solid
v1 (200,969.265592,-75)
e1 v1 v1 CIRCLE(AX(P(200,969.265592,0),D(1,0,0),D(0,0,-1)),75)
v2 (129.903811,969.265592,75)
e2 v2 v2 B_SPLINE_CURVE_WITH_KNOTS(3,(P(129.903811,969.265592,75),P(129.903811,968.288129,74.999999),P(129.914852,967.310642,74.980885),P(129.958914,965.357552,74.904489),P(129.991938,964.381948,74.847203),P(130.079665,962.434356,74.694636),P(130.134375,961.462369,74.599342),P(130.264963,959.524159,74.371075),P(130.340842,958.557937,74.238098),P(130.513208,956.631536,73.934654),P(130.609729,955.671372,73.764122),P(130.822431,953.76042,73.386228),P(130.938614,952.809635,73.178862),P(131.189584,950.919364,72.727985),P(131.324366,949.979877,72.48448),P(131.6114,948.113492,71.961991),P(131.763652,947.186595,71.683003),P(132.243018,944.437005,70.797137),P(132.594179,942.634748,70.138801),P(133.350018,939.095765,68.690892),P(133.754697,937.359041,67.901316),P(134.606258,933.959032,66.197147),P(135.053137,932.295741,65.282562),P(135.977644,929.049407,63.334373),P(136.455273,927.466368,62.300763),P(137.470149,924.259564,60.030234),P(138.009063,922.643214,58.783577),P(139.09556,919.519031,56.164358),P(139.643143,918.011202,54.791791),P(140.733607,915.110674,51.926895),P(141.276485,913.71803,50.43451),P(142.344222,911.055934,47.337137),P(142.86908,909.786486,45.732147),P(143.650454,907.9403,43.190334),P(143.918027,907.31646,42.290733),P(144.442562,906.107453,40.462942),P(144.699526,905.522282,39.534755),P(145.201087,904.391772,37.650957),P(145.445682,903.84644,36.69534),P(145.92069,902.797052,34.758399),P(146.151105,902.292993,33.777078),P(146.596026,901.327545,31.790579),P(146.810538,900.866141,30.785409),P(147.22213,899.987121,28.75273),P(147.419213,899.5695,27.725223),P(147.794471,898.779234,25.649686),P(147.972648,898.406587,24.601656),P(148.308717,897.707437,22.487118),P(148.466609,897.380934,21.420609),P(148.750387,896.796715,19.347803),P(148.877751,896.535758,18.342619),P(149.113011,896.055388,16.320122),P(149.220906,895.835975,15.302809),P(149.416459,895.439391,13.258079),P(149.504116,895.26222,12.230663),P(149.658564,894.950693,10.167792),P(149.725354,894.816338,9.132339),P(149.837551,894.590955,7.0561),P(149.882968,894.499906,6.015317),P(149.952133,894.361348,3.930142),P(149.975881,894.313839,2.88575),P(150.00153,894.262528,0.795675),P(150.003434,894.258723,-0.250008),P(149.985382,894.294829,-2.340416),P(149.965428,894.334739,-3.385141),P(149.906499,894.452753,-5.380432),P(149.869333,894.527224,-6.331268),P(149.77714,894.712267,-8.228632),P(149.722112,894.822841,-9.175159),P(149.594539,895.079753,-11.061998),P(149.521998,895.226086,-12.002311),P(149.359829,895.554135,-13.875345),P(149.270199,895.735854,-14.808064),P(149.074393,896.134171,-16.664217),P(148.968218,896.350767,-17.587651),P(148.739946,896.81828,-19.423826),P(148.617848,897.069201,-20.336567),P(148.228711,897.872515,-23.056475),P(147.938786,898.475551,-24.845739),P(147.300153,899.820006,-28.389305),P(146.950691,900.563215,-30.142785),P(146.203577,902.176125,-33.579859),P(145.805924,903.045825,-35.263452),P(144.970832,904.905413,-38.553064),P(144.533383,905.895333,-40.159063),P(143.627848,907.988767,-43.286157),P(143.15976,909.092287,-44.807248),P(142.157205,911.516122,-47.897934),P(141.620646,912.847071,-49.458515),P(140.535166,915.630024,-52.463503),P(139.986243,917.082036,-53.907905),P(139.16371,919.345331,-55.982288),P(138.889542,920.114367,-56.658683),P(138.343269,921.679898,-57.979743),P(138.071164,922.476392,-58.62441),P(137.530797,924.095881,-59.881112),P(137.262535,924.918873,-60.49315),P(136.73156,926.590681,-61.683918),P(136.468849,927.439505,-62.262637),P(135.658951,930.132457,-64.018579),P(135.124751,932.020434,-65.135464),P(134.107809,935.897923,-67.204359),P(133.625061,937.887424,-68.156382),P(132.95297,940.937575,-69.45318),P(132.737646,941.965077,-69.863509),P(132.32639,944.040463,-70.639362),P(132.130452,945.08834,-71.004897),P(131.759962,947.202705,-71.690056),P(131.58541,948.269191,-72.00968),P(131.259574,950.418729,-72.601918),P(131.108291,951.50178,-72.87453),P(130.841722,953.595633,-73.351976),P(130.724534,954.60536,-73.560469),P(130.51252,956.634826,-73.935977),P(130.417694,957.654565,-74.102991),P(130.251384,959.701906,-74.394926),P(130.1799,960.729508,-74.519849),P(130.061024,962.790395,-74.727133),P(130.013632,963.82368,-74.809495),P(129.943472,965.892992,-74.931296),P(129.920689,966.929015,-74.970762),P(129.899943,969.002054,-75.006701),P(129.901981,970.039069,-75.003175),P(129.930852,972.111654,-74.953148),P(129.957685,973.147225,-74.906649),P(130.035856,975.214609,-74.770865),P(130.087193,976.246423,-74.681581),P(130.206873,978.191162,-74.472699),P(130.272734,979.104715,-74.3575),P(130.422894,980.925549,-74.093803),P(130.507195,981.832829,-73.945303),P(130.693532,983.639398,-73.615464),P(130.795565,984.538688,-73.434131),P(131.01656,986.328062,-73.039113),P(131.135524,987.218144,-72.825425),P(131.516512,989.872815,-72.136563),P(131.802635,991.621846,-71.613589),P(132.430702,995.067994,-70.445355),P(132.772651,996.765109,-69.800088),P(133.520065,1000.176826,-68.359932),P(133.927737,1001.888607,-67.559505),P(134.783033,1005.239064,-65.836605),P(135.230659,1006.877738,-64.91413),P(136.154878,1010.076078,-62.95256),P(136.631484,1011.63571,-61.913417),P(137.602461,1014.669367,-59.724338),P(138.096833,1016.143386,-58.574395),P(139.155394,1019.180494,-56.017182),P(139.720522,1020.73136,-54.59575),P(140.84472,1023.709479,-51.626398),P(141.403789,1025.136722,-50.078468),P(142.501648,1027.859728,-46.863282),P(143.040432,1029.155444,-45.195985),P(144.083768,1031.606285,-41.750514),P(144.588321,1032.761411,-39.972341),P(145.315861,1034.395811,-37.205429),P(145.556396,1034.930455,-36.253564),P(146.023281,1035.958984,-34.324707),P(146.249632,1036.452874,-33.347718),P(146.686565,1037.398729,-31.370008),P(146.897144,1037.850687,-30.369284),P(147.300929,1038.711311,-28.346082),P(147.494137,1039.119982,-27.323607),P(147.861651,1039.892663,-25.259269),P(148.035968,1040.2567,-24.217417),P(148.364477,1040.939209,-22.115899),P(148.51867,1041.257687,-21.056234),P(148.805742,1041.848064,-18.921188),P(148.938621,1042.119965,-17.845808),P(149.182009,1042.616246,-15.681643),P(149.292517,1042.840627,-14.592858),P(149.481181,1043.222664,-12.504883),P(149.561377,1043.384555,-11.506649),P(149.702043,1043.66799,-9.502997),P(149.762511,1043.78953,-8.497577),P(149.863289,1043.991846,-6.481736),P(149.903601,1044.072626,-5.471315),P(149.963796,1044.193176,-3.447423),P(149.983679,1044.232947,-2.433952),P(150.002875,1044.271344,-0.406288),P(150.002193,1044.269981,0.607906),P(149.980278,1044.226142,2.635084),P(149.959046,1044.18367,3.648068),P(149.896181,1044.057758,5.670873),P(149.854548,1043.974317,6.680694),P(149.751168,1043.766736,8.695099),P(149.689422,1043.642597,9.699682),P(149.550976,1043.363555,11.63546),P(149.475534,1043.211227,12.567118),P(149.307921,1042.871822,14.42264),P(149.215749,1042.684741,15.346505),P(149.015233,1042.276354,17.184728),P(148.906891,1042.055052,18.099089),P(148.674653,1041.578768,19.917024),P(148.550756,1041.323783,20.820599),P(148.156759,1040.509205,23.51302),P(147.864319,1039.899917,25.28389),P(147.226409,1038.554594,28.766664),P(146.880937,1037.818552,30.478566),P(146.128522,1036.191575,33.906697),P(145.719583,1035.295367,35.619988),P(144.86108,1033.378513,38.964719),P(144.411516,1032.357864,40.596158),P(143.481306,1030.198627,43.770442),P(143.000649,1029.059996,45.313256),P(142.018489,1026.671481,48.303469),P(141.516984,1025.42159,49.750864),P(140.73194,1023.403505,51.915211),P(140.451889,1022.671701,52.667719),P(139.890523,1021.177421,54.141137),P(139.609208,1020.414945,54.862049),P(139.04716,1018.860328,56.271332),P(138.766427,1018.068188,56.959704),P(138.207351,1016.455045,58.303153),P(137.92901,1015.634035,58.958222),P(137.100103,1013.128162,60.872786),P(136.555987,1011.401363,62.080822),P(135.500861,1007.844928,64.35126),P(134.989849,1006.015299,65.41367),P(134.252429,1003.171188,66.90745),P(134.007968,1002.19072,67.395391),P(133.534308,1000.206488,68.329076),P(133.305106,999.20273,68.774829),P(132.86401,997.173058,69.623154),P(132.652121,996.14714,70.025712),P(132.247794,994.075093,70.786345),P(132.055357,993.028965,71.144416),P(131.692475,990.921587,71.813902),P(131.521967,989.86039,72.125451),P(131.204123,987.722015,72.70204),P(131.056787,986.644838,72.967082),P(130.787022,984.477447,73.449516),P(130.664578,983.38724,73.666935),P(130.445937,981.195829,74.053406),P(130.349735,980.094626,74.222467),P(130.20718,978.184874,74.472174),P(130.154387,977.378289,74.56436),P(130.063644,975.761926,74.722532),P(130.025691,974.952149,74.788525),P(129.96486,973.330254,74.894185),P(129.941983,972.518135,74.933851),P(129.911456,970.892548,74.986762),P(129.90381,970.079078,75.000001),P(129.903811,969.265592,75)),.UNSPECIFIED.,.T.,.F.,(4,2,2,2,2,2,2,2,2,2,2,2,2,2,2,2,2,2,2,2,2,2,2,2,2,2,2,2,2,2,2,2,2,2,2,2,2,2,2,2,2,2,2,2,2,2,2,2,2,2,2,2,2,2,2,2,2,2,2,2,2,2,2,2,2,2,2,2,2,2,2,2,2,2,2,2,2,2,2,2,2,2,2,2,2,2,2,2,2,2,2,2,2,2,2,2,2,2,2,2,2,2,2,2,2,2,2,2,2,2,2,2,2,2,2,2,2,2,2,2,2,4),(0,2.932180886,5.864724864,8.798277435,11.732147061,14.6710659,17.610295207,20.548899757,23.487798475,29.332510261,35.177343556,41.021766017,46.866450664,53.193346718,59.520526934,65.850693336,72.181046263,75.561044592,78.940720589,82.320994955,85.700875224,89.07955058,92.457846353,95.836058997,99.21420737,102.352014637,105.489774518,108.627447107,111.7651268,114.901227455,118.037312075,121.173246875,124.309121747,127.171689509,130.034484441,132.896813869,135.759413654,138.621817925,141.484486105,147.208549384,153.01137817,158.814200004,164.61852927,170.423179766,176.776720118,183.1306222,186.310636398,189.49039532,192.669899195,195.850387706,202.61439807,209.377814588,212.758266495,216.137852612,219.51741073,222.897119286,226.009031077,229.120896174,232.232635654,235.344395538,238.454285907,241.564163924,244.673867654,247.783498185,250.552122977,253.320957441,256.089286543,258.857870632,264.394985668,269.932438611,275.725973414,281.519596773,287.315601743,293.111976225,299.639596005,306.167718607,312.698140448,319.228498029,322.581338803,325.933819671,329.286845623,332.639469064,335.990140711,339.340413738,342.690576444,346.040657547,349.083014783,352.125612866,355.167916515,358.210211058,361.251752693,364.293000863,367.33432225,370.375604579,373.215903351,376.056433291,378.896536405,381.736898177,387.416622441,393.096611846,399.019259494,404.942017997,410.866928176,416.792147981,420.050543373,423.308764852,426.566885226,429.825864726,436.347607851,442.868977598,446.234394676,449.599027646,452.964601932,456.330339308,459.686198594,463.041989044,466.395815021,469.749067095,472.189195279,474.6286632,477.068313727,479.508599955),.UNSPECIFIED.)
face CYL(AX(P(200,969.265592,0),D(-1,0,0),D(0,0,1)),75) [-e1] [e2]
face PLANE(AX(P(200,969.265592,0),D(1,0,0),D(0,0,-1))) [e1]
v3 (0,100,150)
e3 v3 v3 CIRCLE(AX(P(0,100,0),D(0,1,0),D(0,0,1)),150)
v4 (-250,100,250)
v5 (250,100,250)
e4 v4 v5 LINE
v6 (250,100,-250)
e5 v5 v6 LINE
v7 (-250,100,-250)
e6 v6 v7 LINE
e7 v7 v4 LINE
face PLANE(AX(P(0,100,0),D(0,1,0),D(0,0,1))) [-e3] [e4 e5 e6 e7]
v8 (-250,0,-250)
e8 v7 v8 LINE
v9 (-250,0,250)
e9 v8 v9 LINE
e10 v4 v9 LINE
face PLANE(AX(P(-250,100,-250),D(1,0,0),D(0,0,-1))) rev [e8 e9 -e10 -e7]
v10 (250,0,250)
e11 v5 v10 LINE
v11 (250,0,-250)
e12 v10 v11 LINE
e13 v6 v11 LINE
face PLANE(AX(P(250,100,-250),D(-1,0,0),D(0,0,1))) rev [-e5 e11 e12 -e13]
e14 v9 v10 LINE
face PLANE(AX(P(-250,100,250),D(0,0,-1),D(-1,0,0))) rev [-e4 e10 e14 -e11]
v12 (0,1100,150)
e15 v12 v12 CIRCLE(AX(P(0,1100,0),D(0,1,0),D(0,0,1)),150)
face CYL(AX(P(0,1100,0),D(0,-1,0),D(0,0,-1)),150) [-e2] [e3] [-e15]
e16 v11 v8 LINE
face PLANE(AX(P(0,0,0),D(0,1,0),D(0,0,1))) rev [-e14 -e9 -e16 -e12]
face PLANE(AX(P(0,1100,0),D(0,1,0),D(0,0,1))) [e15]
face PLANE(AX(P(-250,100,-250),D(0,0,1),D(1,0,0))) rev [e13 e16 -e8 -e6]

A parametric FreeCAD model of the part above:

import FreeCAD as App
import Part
import Sketcher
from FreeCAD import Vector


def add_polygon(sketch, points):
    """Adds a closed chain of lines whose ends are joined by coincident constraints."""
    first, n = sketch.GeometryCount, len(points)
    for a, b in zip(points, points[1:] + points[:1]):
        sketch.addGeometry(Part.LineSegment(App.Vector(*a, 0), App.Vector(*b, 0)), False)
    for i in range(n):
        sketch.addConstraint(Sketcher.Constraint("Coincident", first + i, 2, first + (i + 1) % n, 1))

doc = App.newDocument("Part")
body = doc.addObject("PartDesign::Body", "Body")

# Sketch on XZ plane
sketch1 = doc.addObject("Sketcher::SketchObject", "Sketch")
body.addObject(sketch1)
sketch1.AttachmentSupport = (doc.XZ_Plane, [""])
sketch1.MapMode = "FlatFace"
add_polygon(sketch1, [(-250, -250), (-250, 250), (250, 250), (250, -250)])  # lines 0-3
sketch1.addConstraint([
    Sketcher.Constraint("Vertical", 0),
    Sketcher.Constraint("Horizontal", 1),
    Sketcher.Constraint("Vertical", 2),
    Sketcher.Constraint("Horizontal", 3),
    Sketcher.Constraint("Symmetric", 0, 2, 2, 2, -1, 1),
    Sketcher.Constraint("Equal", 3, 0),
    Sketcher.Constraint("DistanceX", 1, 1, 1, 2, 500.0),
])
pad1 = doc.addObject("PartDesign::Pad", "Pad")
body.addObject(pad1)
pad1.Profile = sketch1
pad1.Length = 100
pad1.Reversed = True

# Sketch on XZ plane
sketch2 = doc.addObject("Sketcher::SketchObject", "Sketch001")
body.addObject(sketch2)
sketch2.AttachmentSupport = (doc.XZ_Plane, [""])
sketch2.MapMode = "FlatFace"
sketch2.AttachmentOffset = App.Placement(Vector(0, 0, -100), App.Rotation())
sketch2.addGeometry(Part.Circle(Vector(0, 0, 0), Vector(0, 0, 1), 150), False)
sketch2.addConstraint([
    Sketcher.Constraint("Coincident", 0, 3, -1, 1),
    Sketcher.Constraint("Diameter", 0, 300.0),
])
pad2 = doc.addObject("PartDesign::Pad", "Pad001")
body.addObject(pad2)
pad2.Profile = sketch2
pad2.Length = 1000
pad2.Reversed = True

# Sketch on YZ plane
sketch3 = doc.addObject("Sketcher::SketchObject", "Sketch002")
body.addObject(sketch3)
sketch3.AttachmentSupport = (doc.YZ_Plane, [""])
sketch3.MapMode = "FlatFace"
sketch3.addGeometry(Part.Circle(Vector(969, 0, 0), Vector(0, 0, 1), 75), False)
sketch3.addConstraint([
    Sketcher.Constraint("PointOnObject", 0, 3, -1),
    Sketcher.Constraint("Diameter", 0, 150.0),
    Sketcher.Constraint("DistanceX", -1, 1, 0, 3, 969.265592),
])
pad3 = doc.addObject("PartDesign::Pad", "Pad002")
body.addObject(pad3)
pad3.Profile = sketch3
pad3.Length = 200

doc.recompute()
